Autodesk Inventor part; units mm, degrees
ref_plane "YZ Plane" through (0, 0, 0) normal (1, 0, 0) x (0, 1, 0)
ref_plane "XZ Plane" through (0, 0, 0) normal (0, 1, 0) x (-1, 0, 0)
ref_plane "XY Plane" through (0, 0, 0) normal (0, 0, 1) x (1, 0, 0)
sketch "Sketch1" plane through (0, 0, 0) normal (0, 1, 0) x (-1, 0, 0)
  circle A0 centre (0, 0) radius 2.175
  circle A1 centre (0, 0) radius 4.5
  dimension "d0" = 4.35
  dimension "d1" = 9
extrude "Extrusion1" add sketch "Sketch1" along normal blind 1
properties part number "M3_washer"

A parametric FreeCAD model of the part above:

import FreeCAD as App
import Part
import Sketcher

doc = App.newDocument("Part")
body = doc.addObject("PartDesign::Body", "Body")

# Sketch on XZ plane
sketch1 = body.newObject("Sketcher::SketchObject", "Sketch")
sketch1.AttachmentSupport = (doc.getObject("XZ_Plane"), [""])
sketch1.MapMode = "FlatFace"
sketch1.addGeometry([
    Part.Circle(App.Vector(0, 0, 0), App.Vector(0, 0, 1), 4.5),
    Part.Circle(App.Vector(0, 0, 0), App.Vector(0, 0, 1), 2.2),
], False)
sketch1.addConstraint([
    Sketcher.Constraint("Coincident", 0, 3, -1, 1),
    Sketcher.Constraint("Coincident", 1, 3, -1, 1),
    Sketcher.Constraint("Diameter", 0, 9.0),
    Sketcher.Constraint("Diameter", 1, 4.35),
])
pad1 = body.newObject("PartDesign::Pad", "Pad")
pad1.Profile = sketch1
pad1.Length = 1
pad1.Reversed = True

doc.recompute()
